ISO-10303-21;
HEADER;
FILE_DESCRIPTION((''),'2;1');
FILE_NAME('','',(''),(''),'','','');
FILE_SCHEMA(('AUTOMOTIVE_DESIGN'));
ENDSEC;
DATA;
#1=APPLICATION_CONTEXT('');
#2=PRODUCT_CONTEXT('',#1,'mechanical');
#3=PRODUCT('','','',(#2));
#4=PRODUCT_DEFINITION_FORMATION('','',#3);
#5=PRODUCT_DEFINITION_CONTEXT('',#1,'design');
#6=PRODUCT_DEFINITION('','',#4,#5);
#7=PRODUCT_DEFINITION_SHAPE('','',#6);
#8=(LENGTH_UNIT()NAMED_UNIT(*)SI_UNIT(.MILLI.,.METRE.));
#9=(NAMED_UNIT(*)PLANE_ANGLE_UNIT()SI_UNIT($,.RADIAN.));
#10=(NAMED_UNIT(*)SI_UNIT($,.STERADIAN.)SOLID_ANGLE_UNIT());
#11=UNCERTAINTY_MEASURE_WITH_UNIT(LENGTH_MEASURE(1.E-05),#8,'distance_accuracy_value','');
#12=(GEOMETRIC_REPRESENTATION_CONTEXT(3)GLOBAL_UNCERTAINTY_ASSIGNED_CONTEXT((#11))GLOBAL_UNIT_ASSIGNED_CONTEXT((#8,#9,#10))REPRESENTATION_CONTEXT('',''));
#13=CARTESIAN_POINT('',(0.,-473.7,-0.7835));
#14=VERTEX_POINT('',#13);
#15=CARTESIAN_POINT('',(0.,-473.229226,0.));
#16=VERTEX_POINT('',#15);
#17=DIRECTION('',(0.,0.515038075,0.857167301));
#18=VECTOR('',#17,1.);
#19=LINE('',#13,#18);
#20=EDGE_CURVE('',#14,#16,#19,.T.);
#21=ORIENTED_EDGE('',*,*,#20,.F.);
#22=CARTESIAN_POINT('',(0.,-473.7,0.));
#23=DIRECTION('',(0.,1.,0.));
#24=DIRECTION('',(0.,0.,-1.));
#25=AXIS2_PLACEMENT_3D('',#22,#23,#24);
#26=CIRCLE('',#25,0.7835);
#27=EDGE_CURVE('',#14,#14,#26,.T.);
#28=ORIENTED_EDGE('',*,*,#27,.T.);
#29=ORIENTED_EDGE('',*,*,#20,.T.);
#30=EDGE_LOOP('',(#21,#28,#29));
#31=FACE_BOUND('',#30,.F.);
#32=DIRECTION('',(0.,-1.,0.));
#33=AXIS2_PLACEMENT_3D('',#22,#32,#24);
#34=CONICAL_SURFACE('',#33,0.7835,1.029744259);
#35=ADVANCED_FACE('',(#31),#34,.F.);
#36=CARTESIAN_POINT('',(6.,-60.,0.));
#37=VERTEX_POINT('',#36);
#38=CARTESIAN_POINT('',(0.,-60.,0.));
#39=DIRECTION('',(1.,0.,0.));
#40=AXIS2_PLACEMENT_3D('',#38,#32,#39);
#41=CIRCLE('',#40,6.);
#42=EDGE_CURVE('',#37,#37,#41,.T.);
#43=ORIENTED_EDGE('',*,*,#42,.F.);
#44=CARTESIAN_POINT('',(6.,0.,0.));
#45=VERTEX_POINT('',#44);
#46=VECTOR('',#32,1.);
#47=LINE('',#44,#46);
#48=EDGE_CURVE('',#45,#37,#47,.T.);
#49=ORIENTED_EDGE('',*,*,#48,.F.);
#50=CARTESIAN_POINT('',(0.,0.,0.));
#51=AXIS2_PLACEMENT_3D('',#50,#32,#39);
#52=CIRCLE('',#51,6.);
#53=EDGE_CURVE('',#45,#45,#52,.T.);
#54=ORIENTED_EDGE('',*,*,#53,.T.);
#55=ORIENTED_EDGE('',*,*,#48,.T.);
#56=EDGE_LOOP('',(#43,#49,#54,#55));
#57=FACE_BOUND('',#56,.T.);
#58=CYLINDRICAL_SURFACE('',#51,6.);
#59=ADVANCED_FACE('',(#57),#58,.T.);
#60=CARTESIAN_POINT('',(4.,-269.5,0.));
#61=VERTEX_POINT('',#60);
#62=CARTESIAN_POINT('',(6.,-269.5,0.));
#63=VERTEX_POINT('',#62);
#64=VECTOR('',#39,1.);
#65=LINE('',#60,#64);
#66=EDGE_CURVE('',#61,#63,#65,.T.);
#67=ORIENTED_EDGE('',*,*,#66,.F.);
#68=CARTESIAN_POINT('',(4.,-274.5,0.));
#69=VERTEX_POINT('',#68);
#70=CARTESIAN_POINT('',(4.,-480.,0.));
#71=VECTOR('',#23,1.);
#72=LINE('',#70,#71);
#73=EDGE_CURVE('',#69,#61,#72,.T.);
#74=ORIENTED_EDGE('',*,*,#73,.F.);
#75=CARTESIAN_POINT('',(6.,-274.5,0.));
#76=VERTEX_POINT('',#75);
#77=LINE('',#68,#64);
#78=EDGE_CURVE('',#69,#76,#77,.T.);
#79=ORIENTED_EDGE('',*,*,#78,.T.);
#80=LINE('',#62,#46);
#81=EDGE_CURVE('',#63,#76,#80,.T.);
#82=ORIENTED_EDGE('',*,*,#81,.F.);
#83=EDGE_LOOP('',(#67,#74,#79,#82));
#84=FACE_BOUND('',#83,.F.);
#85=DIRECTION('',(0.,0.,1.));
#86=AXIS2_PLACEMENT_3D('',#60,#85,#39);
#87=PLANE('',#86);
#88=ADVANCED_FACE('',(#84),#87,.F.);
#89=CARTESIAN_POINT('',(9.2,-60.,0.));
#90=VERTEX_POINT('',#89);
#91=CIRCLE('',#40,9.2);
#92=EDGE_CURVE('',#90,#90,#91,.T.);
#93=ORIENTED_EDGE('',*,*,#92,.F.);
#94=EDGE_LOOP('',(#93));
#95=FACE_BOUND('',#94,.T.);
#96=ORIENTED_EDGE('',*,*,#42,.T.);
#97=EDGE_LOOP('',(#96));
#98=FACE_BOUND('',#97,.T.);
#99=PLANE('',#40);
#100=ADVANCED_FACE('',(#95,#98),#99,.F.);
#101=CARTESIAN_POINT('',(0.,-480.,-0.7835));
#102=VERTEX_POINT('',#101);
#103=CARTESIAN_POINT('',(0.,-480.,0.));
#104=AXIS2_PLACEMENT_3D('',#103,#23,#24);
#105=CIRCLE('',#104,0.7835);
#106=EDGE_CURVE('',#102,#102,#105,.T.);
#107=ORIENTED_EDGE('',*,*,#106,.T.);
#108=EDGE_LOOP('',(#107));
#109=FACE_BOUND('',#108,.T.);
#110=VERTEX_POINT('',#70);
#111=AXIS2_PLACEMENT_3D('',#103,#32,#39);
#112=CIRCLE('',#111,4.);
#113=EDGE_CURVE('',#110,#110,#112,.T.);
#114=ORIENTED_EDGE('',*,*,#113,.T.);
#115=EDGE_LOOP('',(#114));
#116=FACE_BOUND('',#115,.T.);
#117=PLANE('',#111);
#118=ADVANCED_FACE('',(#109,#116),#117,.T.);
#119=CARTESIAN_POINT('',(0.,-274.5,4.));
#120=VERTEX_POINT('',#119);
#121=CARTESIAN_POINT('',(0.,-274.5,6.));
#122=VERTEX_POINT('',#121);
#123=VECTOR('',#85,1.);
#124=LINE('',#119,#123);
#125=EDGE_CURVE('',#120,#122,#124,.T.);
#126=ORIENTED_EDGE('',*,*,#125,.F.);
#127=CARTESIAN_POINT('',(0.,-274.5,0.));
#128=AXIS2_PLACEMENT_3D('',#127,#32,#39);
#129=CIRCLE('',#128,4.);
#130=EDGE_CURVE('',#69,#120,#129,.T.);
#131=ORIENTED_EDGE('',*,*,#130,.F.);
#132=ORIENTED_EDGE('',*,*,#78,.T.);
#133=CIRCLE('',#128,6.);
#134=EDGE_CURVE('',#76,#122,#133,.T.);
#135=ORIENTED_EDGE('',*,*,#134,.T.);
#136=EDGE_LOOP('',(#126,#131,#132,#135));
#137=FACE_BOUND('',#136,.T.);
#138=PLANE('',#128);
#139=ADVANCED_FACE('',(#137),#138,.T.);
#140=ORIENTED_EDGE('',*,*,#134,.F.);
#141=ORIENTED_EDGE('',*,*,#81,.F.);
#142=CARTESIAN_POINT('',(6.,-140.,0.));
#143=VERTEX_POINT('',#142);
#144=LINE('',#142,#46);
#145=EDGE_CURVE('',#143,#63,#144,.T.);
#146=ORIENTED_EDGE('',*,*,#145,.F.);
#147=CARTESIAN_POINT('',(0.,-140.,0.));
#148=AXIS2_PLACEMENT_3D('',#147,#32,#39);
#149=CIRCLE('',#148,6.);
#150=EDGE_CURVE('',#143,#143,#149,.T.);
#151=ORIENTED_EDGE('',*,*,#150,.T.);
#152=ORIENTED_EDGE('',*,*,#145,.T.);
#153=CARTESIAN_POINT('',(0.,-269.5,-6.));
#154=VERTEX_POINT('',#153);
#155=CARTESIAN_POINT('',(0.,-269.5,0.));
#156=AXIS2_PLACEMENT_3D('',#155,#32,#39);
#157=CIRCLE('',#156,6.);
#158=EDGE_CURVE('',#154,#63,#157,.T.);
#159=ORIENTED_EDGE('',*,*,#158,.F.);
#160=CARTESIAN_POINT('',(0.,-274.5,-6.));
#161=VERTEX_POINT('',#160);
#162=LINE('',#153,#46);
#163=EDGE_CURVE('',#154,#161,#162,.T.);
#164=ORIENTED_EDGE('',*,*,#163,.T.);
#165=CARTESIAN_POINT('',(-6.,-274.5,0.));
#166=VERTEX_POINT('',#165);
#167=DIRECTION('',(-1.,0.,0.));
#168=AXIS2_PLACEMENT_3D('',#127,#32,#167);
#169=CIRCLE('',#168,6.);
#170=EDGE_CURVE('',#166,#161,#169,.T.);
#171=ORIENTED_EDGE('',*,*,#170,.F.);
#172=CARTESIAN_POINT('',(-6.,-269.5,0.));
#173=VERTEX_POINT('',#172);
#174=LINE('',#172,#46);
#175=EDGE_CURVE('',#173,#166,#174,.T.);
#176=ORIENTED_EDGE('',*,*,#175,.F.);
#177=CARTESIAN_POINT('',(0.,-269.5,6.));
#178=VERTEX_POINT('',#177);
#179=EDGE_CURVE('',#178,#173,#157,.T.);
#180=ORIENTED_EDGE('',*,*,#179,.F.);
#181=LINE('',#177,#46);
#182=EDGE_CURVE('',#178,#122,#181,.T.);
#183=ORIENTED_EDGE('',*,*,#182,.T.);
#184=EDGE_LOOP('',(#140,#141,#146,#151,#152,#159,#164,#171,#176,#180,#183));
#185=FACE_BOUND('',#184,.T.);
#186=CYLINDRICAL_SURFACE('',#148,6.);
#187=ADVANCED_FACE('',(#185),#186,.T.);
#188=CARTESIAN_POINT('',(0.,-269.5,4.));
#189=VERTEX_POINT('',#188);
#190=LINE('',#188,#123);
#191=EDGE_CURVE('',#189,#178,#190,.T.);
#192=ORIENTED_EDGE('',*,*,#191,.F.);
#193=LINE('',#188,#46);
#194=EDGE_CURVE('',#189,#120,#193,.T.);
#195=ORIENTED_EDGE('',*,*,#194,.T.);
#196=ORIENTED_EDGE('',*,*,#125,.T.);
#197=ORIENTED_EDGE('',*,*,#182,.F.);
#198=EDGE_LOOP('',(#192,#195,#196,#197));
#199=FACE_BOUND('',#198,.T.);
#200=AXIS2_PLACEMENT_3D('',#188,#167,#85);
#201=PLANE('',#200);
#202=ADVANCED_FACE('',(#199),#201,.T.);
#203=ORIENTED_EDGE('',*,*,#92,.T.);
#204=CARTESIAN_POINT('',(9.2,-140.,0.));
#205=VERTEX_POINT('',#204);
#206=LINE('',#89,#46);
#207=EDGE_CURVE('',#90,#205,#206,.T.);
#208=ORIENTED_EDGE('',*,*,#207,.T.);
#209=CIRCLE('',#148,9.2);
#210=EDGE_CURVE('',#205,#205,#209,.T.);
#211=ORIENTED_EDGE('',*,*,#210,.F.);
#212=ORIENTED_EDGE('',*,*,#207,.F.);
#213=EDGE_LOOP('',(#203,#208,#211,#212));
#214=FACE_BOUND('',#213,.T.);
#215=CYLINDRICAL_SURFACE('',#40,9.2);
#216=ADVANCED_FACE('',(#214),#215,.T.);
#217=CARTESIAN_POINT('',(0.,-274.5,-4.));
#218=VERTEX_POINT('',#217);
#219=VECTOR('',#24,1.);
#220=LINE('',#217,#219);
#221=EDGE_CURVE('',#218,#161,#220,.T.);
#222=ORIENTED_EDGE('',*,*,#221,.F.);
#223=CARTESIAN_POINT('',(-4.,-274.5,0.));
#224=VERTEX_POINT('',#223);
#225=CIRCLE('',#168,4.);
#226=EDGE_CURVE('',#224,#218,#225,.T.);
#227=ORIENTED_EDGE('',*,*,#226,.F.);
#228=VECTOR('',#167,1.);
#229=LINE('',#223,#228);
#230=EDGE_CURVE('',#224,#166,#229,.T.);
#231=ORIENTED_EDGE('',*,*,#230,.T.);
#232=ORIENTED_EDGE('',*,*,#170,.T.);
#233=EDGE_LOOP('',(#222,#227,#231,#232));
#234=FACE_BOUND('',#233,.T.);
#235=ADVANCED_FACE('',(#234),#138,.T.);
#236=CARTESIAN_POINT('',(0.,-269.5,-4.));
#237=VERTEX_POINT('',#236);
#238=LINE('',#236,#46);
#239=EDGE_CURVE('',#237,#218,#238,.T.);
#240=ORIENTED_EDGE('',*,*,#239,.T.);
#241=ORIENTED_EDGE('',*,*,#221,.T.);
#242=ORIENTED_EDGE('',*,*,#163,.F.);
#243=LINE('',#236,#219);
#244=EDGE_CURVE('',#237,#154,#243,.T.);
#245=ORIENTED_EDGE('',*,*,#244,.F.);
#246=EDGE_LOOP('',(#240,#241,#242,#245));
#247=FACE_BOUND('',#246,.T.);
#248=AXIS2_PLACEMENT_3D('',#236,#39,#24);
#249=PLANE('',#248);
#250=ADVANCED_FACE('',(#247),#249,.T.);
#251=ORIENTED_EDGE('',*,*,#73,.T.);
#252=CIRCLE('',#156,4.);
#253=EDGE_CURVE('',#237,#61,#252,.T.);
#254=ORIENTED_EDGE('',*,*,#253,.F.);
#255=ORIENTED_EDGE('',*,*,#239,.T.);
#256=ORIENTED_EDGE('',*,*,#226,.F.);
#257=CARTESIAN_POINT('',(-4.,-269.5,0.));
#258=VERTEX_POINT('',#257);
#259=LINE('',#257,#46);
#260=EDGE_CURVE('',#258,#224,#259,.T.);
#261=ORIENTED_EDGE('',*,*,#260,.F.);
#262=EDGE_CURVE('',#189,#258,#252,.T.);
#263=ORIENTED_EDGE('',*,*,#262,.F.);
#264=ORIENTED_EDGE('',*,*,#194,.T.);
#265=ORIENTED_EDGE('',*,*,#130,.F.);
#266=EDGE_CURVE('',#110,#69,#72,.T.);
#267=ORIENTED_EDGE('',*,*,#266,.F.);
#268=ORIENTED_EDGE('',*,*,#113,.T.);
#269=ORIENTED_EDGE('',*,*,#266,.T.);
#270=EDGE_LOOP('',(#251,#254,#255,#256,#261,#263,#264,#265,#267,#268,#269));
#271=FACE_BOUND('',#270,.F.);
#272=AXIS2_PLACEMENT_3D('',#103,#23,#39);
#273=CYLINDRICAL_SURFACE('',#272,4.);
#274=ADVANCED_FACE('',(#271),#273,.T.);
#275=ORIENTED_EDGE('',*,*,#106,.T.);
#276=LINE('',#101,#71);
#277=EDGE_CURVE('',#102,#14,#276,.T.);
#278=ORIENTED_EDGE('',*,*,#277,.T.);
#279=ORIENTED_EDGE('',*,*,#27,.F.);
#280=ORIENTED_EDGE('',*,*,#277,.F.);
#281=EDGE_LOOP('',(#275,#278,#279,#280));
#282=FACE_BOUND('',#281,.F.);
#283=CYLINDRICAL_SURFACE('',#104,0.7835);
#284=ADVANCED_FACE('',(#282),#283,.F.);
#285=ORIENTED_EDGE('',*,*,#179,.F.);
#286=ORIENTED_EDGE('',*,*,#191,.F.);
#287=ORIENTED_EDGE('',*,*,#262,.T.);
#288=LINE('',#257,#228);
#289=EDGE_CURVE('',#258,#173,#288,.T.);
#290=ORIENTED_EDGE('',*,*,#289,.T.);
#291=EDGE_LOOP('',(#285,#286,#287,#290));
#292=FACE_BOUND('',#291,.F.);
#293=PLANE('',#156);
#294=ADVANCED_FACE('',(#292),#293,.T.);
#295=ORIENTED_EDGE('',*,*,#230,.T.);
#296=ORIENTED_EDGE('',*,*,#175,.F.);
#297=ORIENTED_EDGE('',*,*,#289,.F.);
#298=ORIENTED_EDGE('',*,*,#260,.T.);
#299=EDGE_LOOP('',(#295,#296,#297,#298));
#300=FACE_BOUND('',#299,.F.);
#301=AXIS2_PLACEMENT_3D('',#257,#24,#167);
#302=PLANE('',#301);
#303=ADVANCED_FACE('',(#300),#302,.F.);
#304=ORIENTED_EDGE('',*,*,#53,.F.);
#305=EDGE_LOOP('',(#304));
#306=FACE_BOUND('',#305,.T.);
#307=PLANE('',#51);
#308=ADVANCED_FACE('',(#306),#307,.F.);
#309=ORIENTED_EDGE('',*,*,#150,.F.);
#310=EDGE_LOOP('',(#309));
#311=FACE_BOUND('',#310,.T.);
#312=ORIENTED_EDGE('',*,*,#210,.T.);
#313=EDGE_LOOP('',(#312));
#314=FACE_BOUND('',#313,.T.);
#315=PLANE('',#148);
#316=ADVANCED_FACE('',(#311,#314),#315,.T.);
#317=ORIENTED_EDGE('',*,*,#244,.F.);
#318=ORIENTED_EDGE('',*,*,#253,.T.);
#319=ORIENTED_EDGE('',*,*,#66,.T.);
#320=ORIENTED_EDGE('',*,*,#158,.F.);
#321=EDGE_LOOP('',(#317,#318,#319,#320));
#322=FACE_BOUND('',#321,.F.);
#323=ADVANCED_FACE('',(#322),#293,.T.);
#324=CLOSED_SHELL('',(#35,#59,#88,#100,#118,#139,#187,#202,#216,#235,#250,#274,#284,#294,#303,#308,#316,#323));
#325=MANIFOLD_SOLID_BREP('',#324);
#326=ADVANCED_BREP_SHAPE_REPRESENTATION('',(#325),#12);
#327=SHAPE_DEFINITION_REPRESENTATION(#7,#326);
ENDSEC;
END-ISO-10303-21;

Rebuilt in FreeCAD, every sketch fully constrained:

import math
import FreeCAD as App
import Part
import Sketcher

doc = App.newDocument("Part")
params = doc.addObject("Spreadsheet::Sheet", "Params")
for row, (alias, value) in enumerate([
    ("sketch1_height", "480 mm"),
    ("sketch1_height2", "80 mm"),
    ("sketch1_height3", "60 mm"),
    ("sketch1_height4", "210.5 mm"),
    ("sketch1_width", "6 mm"),
    ("revolution_angle", "360 deg"),
    ("sketch2_radius", "4 mm"),
    ("sketch2_radius2", "6 mm"),
    ("pad1_length", "5 mm"),
    ("hole_diameter", "1.567 mm"),
    ("hole_depth", "6.3 mm"),
], start=1):
    params.set(f"A{row}", alias)
    params.set(f"B{row}", "=" + value)
    params.setAlias(f"B{row}", alias)

body = doc.addObject("PartDesign::Body", "Body")

sketch1 = doc.addObject("Sketcher::SketchObject", "Sketch")
body.addObject(sketch1)
sketch1.AttachmentSupport = (doc.XY_Plane, [""])
sketch1.MapMode = "FlatFace"
sketch1.addGeometry([
    Part.LineSegment(App.Vector(6, 0, 0), App.Vector(0, 0, 0)),
    Part.LineSegment(App.Vector(0, 0, 0), App.Vector(0, -480, 0)),
    Part.LineSegment(App.Vector(0, -480, 0), App.Vector(4, -480, 0)),
    Part.LineSegment(App.Vector(4, -480, 0), App.Vector(4, -269.5, 0)),
    Part.LineSegment(App.Vector(4, -269.5, 0), App.Vector(6, -269.5, 0)),
    Part.LineSegment(App.Vector(6, -269.5, 0), App.Vector(6, -140, 0)),
    Part.LineSegment(App.Vector(6, -140, 0), App.Vector(9.2, -140, 0)),
    Part.LineSegment(App.Vector(9.2, -140, 0), App.Vector(9.2, -60, 0)),
    Part.LineSegment(App.Vector(9.2, -60, 0), App.Vector(6, -60, 0)),
    Part.LineSegment(App.Vector(6, -60, 0), App.Vector(6, 0, 0)),
], False)
sketch1.addConstraint([
    Sketcher.Constraint("Coincident", 0, 2, 1, 1),
    Sketcher.Constraint("Coincident", 1, 2, 2, 1),
    Sketcher.Constraint("Coincident", 2, 2, 3, 1),
    Sketcher.Constraint("Coincident", 3, 2, 4, 1),
    Sketcher.Constraint("Coincident", 4, 2, 5, 1),
    Sketcher.Constraint("Coincident", 5, 2, 6, 1),
    Sketcher.Constraint("Coincident", 6, 2, 7, 1),
    Sketcher.Constraint("Coincident", 7, 2, 8, 1),
    Sketcher.Constraint("Coincident", 8, 2, 9, 1),
    Sketcher.Constraint("Coincident", 9, 2, 0, 1),
    Sketcher.Constraint("Horizontal", 0),
    Sketcher.Constraint("Vertical", 1),
    Sketcher.Constraint("Horizontal", 2),
    Sketcher.Constraint("Vertical", 3),
    Sketcher.Constraint("Horizontal", 4),
    Sketcher.Constraint("Vertical", 5),
    Sketcher.Constraint("Horizontal", 6),
    Sketcher.Constraint("Vertical", 7),
    Sketcher.Constraint("Horizontal", 8),
    Sketcher.Constraint("Vertical", 9),
    Sketcher.Constraint("Coincident", 0, 2, -1, 1),
    Sketcher.Constraint("Vertical", 5, 2, 8, 2),
    Sketcher.Constraint("DistanceY", 1, 2, 1, 1, 480.0),
    Sketcher.Constraint("DistanceY", 7, 1, 7, 2, 80.0),
    Sketcher.Constraint("DistanceY", 9, 1, 9, 2, 60.0),
    Sketcher.Constraint("DistanceY", 3, 1, 3, 2, 210.5),
    Sketcher.Constraint("DistanceX", 0, 2, 0, 1, 6.0),
    Sketcher.Constraint("DistanceX", 2, 1, 2, 2, 4.0),
    Sketcher.Constraint("DistanceX", 6, 1, 6, 2, 3.2),
])
sketch1.setExpression("Constraints[22]", "Params.sketch1_height")
sketch1.setExpression("Constraints[23]", "Params.sketch1_height2")
sketch1.setExpression("Constraints[24]", "Params.sketch1_height3")
sketch1.setExpression("Constraints[25]", "Params.sketch1_height4")
sketch1.setExpression("Constraints[26]", "Params.sketch1_width")
revolution = doc.addObject("PartDesign::Revolution", "Revolution")
body.addObject(revolution)
revolution.Profile = sketch1
revolution.ReferenceAxis = (sketch1, ["V_Axis"])
revolution.setExpression("Angle", "Params.revolution_angle")

sketch2 = doc.addObject("Sketcher::SketchObject", "Sketch001")
body.addObject(sketch2)
sketch2.AttachmentSupport = (doc.XZ_Plane, [""])
sketch2.MapMode = "FlatFace"
sketch2.AttachmentOffset = App.Placement(App.Vector(0, 0, 269.5), App.Rotation())
sketch2.addGeometry([
    Part.LineSegment(App.Vector(4, 0, 0), App.Vector(6, 0, 0)),
    Part.ArcOfCircle(Part.Circle(App.Vector(0, 0, 0), App.Vector(0, 0, 1), 6), math.radians(0), math.radians(90)),
    Part.LineSegment(App.Vector(0, 6, 0), App.Vector(0, 4, 0)),
    Part.ArcOfCircle(Part.Circle(App.Vector(0, 0, 0), App.Vector(0, 0, 1), 4), math.radians(0), math.radians(90)),
    Part.LineSegment(App.Vector(-4, 0, 0), App.Vector(-6, 0, 0)),
    Part.ArcOfCircle(Part.Circle(App.Vector(0, 0, 0), App.Vector(0, 0, 1), 6), math.radians(180), math.radians(270)),
    Part.LineSegment(App.Vector(0, -6, 0), App.Vector(0, -4, 0)),
    Part.ArcOfCircle(Part.Circle(App.Vector(0, 0, 0), App.Vector(0, 0, 1), 4), math.radians(180), math.radians(270)),
], False)
sketch2.addConstraint([
    Sketcher.Constraint("Coincident", 0, 2, 1, 1),
    Sketcher.Constraint("Coincident", 1, 2, 2, 1),
    Sketcher.Constraint("Coincident", 2, 2, 3, 2),
    Sketcher.Constraint("Coincident", 3, 1, 0, 1),
    Sketcher.Constraint("Coincident", 4, 2, 5, 1),
    Sketcher.Constraint("Coincident", 5, 2, 6, 1),
    Sketcher.Constraint("Coincident", 6, 2, 7, 2),
    Sketcher.Constraint("Coincident", 7, 1, 4, 1),
    Sketcher.Constraint("Horizontal", 0),
    Sketcher.Constraint("Vertical", 2),
    Sketcher.Constraint("Horizontal", 4),
    Sketcher.Constraint("Vertical", 6),
    Sketcher.Constraint("Coincident", 1, 3, -1, 1),
    Sketcher.Constraint("Coincident", 3, 3, -1, 1),
    Sketcher.Constraint("Coincident", 5, 3, -1, 1),
    Sketcher.Constraint("Coincident", 7, 3, -1, 1),
    Sketcher.Constraint("Equal", 1, 5),
    Sketcher.Constraint("Equal", 3, 7),
    Sketcher.Constraint("PointOnObject", 0, 2, -1),
    Sketcher.Constraint("PointOnObject", 1, 2, -2),
    Sketcher.Constraint("PointOnObject", 4, 2, -1),
    Sketcher.Constraint("PointOnObject", 5, 2, -2),
    Sketcher.Constraint("Radius", 3, 4.0),
    Sketcher.Constraint("Radius", 1, 6.0),
])
sketch2.setExpression("Constraints[22]", "Params.sketch2_radius")
sketch2.setExpression("Constraints[23]", "Params.sketch2_radius2")
pad1 = doc.addObject("PartDesign::Pad", "Pad")
body.addObject(pad1)
pad1.Profile = sketch2
pad1.setExpression("Length", "Params.pad1_length")

sketch3 = doc.addObject("Sketcher::SketchObject", "Sketch002")
body.addObject(sketch3)
sketch3.AttachmentSupport = (doc.XZ_Plane, [""])
sketch3.MapMode = "FlatFace"
sketch3.AttachmentOffset = App.Placement(App.Vector(0, 0, 480), App.Rotation())
sketch3.addGeometry(Part.Circle(App.Vector(0, 0, 0), App.Vector(0, 0, 1), 0.8), False)
sketch3.addConstraint([
    Sketcher.Constraint("Coincident", 0, 3, -1, 1),
    Sketcher.Constraint("Diameter", 0, 1.567),
])
doc.recompute()
hole = doc.addObject("PartDesign::Hole", "Hole")
body.addObject(hole)
hole.Profile = sketch3
hole.ThreadType = "None"
hole.setExpression("Diameter", "Params.hole_diameter")
hole.DepthType = "Dimension"
hole.setExpression("Depth", "Params.hole_depth")
hole.DrillPoint = "Angled"
hole.DrillPointAngle = 118

doc.recompute()
